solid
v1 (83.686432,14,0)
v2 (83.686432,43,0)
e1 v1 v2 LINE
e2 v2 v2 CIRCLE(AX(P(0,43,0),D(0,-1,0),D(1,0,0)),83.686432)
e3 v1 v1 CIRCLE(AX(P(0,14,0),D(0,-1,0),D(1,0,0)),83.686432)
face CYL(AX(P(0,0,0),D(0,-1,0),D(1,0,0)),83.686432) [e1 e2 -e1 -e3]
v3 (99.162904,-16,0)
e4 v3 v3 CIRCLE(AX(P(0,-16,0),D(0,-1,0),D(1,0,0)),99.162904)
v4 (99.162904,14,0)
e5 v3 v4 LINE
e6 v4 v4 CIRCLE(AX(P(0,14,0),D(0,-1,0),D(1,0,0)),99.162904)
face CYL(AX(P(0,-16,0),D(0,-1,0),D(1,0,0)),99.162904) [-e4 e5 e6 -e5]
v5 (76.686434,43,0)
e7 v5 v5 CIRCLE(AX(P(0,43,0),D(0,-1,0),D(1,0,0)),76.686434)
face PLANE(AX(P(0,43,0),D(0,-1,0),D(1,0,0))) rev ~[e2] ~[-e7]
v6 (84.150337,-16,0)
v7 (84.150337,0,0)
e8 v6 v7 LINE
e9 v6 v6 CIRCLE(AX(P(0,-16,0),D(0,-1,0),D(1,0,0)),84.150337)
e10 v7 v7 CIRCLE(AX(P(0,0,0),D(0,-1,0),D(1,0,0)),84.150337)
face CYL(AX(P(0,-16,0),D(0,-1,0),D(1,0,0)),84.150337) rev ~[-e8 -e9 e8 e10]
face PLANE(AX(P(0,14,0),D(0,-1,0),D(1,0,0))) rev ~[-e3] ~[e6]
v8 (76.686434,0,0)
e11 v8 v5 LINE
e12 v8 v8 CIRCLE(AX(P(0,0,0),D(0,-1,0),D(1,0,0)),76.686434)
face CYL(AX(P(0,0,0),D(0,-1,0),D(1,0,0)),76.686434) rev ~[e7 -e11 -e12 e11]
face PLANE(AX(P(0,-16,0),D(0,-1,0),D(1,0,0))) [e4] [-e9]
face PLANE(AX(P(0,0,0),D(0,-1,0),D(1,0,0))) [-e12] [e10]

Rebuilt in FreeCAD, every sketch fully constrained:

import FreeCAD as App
import Part
import Sketcher
from FreeCAD import Vector

doc = App.newDocument("Part")
body = doc.addObject("PartDesign::Body", "Body")

# Sketch on XZ plane
sketch1 = body.newObject("Sketcher::SketchObject", "Sketch")
sketch1.AttachmentSupport = (doc.getObject("XZ_Plane"), [""])
sketch1.MapMode = "FlatFace"
sketch1.addGeometry([
    Part.Circle(Vector(0, 0, 0), Vector(0, 0, 1), 98.686434),
    Part.Circle(Vector(0, 0, 0), Vector(0, 0, 1), 83.686432),
], False)
sketch1.addConstraint([
    Sketcher.Constraint("Coincident", 0, 3, -1, 1),
    Sketcher.Constraint("Coincident", 1, 3, -1, 1),
    Sketcher.Constraint("Diameter", 0, 197.372868),
    Sketcher.Constraint("Diameter", 1, 167.372864),
])
pad1 = body.newObject("PartDesign::Pad", "Pad")
pad1.Profile = sketch1
pad1.Length = 16

# Sketch on XZ plane
sketch2 = body.newObject("Sketcher::SketchObject", "Sketch001")
sketch2.AttachmentSupport = (doc.getObject("XZ_Plane"), [""])
sketch2.MapMode = "FlatFace"
sketch2.addGeometry([
    Part.Circle(Vector(0, 0, 0), Vector(0, 0, 1), 98.686434),
    Part.Circle(Vector(0, 0, 0), Vector(0, 0, 1), 83.686432),
], False)
sketch2.addConstraint([
    Sketcher.Constraint("Coincident", 0, 3, -1, 1),
    Sketcher.Constraint("Coincident", 1, 3, -1, 1),
    Sketcher.Constraint("Diameter", 0, 197.372868),
    Sketcher.Constraint("Diameter", 1, 167.372864),
])
pad2 = body.newObject("PartDesign::Pad", "Pad001")
pad2.Profile = sketch2
pad2.Length = 14
pad2.Reversed = True

# Sketch on XZ plane
sketch3 = body.newObject("Sketcher::SketchObject", "Sketch002")
sketch3.AttachmentSupport = (doc.getObject("XZ_Plane"), [""])
sketch3.MapMode = "FlatFace"
sketch3.addGeometry([
    Part.Circle(Vector(0, 0, 0), Vector(0, 0, 1), 83.686432),
    Part.Circle(Vector(0, 0, 0), Vector(0, 0, 1), 76.686434),
], False)
sketch3.addConstraint([
    Sketcher.Constraint("Coincident", 0, 3, -1, 1),
    Sketcher.Constraint("Coincident", 1, 3, -1, 1),
    Sketcher.Constraint("Diameter", 1, 153.372868),
    Sketcher.Constraint("Diameter", 0, 167.372864),
])
pad3 = body.newObject("PartDesign::Pad", "Pad002")
pad3.Profile = sketch3
pad3.Length = 43
pad3.Reversed = True

# Sketch on XZ plane
sketch4 = body.newObject("Sketcher::SketchObject", "Sketch003")
sketch4.AttachmentSupport = (doc.getObject("XZ_Plane"), [""])
sketch4.MapMode = "FlatFace"
sketch4.AttachmentOffset = App.Placement(Vector(0, 0, 16), App.Rotation())
sketch4.addGeometry([
    Part.Circle(Vector(0, 0, 0), Vector(0, 0, 1), 84.150337),
    Part.Circle(Vector(0, 0, 0), Vector(0, 0, 1), 83.686432),
], False)
sketch4.addConstraint([
    Sketcher.Constraint("Coincident", 0, 3, -1, 1),
    Sketcher.Constraint("Coincident", 1, 3, -1, 1),
    Sketcher.Constraint("Diameter", 0, 168.300674),
    Sketcher.Constraint("Diameter", 1, 167.372864),
])
pocket1 = body.newObject("PartDesign::Pocket", "Pocket")
pocket1.Profile = sketch4
pocket1.Length = 16

# Sketch on XZ plane
sketch5 = body.newObject("Sketcher::SketchObject", "Sketch004")
sketch5.AttachmentSupport = (doc.getObject("XZ_Plane"), [""])
sketch5.MapMode = "FlatFace"
sketch5.AttachmentOffset = App.Placement(Vector(0, 0, 16), App.Rotation())
sketch5.addGeometry([
    Part.Circle(Vector(0, 0, 0), Vector(0, 0, 1), 99.162904),
    Part.Circle(Vector(0, 0, 0), Vector(0, 0, 1), 98.686434),
], False)
sketch5.addConstraint([
    Sketcher.Constraint("Coincident", 0, 3, -1, 1),
    Sketcher.Constraint("Coincident", 1, 3, -1, 1),
    Sketcher.Constraint("Diameter", 0, 198.325808),
    Sketcher.Constraint("Diameter", 1, 197.372868),
])
pad4 = body.newObject("PartDesign::Pad", "Pad003")
pad4.Profile = sketch5
pad4.Length = 30
pad4.Reversed = True

doc.recompute()
